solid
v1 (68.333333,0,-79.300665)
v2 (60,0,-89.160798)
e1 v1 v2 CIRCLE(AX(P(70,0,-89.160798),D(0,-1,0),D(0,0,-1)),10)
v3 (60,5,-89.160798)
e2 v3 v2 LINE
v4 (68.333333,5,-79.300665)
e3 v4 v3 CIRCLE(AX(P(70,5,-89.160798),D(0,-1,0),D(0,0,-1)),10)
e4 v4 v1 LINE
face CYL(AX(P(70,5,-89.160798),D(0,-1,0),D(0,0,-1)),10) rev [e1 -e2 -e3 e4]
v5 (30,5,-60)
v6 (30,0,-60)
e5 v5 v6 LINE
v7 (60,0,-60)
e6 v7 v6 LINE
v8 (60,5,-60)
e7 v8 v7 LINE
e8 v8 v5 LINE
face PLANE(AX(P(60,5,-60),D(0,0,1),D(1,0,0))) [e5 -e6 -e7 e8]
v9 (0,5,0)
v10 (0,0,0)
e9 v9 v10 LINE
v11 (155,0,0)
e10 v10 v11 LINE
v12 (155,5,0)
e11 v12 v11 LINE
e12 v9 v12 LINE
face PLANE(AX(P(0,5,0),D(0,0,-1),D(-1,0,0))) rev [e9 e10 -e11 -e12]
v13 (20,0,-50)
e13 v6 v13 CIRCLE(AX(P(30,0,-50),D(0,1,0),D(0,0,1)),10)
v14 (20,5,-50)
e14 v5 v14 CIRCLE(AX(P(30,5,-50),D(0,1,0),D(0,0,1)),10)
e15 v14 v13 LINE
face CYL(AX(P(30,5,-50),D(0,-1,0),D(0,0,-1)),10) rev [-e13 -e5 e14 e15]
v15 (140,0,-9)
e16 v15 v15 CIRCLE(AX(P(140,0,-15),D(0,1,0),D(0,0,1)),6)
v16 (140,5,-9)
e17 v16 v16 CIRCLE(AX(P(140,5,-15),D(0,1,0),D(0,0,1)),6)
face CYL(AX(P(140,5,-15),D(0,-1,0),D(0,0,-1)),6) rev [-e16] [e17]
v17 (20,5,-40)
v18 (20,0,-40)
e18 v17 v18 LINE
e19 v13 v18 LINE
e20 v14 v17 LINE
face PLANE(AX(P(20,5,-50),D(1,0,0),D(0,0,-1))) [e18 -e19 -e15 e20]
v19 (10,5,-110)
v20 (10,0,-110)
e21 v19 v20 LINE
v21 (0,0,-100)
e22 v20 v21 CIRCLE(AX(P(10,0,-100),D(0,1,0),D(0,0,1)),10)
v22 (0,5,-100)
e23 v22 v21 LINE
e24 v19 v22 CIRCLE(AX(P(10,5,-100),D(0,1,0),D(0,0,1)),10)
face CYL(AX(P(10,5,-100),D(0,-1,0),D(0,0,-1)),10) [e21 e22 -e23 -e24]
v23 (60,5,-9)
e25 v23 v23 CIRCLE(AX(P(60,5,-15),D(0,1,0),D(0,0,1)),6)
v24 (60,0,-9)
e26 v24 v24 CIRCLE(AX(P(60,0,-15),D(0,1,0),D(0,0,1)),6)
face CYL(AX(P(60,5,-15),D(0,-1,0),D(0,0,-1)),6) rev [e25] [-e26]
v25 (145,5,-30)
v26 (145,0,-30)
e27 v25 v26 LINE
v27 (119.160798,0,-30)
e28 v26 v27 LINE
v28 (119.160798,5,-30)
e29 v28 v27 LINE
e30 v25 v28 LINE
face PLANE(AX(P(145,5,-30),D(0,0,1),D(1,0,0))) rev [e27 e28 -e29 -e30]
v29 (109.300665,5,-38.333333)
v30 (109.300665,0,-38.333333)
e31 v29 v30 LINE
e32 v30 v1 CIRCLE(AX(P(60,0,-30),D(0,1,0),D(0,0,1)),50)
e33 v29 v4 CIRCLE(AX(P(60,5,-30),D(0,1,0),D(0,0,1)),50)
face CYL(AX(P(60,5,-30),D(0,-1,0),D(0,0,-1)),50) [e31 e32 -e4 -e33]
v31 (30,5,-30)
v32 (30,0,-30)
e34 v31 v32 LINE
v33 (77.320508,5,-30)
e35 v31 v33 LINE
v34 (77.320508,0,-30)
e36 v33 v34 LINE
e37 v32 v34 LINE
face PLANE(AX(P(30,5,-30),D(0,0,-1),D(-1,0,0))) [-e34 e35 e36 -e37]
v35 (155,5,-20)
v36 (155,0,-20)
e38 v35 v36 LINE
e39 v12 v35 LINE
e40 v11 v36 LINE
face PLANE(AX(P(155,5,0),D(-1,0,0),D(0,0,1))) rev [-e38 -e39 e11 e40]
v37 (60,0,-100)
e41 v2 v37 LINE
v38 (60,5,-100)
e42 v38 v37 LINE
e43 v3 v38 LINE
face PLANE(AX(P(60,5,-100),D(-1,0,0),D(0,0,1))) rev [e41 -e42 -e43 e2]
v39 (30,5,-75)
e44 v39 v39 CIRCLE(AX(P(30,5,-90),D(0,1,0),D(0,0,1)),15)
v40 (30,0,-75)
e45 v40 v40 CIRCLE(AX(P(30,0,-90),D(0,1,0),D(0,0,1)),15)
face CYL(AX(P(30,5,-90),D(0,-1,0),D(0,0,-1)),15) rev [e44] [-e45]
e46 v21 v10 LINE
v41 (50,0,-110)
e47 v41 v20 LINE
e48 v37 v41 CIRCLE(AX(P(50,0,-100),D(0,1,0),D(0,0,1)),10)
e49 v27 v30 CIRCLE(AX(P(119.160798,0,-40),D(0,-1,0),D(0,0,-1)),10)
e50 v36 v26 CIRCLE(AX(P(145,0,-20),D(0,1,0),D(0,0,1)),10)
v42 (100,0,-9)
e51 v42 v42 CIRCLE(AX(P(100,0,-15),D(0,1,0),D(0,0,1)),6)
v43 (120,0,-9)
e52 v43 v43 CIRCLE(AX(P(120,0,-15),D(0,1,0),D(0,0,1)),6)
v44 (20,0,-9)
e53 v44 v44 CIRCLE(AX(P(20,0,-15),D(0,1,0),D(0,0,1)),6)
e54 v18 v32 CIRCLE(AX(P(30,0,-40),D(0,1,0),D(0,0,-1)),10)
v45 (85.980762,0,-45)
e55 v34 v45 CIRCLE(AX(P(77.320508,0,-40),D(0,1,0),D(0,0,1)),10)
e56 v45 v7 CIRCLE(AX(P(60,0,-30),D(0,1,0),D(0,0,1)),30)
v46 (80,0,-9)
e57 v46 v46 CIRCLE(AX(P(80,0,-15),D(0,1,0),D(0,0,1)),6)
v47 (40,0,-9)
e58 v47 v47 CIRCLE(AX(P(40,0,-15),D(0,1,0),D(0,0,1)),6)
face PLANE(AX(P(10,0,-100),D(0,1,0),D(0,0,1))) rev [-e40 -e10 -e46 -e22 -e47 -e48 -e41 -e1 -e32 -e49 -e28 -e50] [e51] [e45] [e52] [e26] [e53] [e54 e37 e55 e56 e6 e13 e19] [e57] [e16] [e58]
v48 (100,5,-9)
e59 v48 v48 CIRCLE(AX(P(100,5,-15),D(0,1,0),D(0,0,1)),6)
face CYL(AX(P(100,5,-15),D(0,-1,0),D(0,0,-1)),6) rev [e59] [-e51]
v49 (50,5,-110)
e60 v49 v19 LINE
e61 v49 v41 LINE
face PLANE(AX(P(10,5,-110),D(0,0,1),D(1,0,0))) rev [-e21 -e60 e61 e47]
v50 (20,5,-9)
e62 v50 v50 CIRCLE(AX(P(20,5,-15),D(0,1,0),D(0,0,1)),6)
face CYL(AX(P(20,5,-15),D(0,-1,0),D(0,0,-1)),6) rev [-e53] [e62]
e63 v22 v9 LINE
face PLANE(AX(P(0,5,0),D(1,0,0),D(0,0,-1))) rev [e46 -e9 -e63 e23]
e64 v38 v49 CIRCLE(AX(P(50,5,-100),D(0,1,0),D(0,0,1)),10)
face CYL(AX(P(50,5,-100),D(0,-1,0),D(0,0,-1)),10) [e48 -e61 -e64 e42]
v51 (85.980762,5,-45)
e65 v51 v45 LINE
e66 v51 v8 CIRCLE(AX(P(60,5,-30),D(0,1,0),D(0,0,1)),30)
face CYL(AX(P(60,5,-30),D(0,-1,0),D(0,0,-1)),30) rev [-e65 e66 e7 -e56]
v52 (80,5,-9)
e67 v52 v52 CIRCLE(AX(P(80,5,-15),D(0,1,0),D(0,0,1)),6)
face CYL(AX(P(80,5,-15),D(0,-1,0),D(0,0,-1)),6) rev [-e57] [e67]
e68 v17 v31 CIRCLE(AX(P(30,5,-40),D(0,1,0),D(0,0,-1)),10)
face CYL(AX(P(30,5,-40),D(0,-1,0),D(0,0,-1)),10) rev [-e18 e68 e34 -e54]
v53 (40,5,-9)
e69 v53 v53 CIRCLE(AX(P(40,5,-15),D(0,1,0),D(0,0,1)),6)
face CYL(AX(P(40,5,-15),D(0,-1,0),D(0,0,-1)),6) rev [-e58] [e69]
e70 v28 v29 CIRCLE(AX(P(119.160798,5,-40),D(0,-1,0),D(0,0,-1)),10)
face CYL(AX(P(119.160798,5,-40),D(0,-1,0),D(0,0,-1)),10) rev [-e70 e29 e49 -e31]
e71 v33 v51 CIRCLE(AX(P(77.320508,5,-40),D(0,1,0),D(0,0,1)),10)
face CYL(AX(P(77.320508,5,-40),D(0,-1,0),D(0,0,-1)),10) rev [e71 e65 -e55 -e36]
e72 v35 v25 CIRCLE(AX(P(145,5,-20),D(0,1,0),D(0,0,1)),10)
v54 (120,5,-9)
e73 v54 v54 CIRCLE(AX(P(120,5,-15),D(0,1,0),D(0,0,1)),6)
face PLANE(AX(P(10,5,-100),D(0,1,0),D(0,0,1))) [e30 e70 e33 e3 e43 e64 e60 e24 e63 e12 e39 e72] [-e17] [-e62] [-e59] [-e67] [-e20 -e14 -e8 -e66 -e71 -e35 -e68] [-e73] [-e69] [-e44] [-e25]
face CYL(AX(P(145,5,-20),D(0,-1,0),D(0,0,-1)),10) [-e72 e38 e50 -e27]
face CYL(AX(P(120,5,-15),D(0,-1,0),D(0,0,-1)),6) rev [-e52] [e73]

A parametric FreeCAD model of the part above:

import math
import FreeCAD as App
import Part
import Sketcher

doc = App.newDocument("Part")
body = doc.addObject("PartDesign::Body", "Body")

# Sketch on XZ plane
sketch1 = body.newObject("Sketcher::SketchObject", "Sketch")
sketch1.AttachmentSupport = (doc.getObject("XZ_Plane"), [""])
sketch1.MapMode = "FlatFace"
sketch1.addGeometry(Part.LineSegment(App.Vector(0, 0, 0), App.Vector(155, 0, 0)), False)
sketch1.addGeometry(Part.LineSegment(App.Vector(155, 0, 0), App.Vector(155, -20, 0)), False)
sketch1.addGeometry(Part.ArcOfCircle(Part.Circle(App.Vector(145, -20, 0), App.Vector(0, 0, 1), 10), math.radians(-90), math.radians(0)), False)
sketch1.addGeometry(Part.LineSegment(App.Vector(145, -30, 0), App.Vector(119, -30, 0)), False)
sketch1.addGeometry(Part.ArcOfCircle(Part.Circle(App.Vector(119, -40, 0), App.Vector(0, 0, 1), 10), math.radians(90), math.radians(170)), False)
sketch1.addGeometry(Part.ArcOfCircle(Part.Circle(App.Vector(60, -30, 0), App.Vector(0, 0, 1), 50), math.radians(-80), math.radians(-10)), False)
sketch1.addGeometry(Part.ArcOfCircle(Part.Circle(App.Vector(70, -89, 0), App.Vector(0, 0, 1), 10), math.radians(100), math.radians(180)), False)
sketch1.addGeometry(Part.LineSegment(App.Vector(60, -89, 0), App.Vector(60, -100, 0)), False)
sketch1.addGeometry(Part.ArcOfCircle(Part.Circle(App.Vector(50, -100, 0), App.Vector(0, 0, 1), 10), math.radians(-90), math.radians(0)), False)
sketch1.addGeometry(Part.LineSegment(App.Vector(50, -110, 0), App.Vector(10, -110, 0)), False)
sketch1.addGeometry(Part.ArcOfCircle(Part.Circle(App.Vector(10, -100, 0), App.Vector(0, 0, 1), 10), math.radians(180), math.radians(270)), False)
sketch1.addGeometry(Part.LineSegment(App.Vector(0, -100, 0), App.Vector(0, 0, 0)), False)
sketch1.addGeometry(Part.Circle(App.Vector(20, -15, 0), App.Vector(0, 0, 1), 6), False)
sketch1.addGeometry(Part.Circle(App.Vector(40, -15, 0), App.Vector(0, 0, 1), 6), False)
sketch1.addGeometry(Part.Circle(App.Vector(60, -15, 0), App.Vector(0, 0, 1), 6), False)
sketch1.addGeometry(Part.LineSegment(App.Vector(30, -60, 0), App.Vector(60, -60, 0)), False)
sketch1.addGeometry(Part.ArcOfCircle(Part.Circle(App.Vector(60, -30, 0), App.Vector(0, 0, 1), 30), math.radians(-90), math.radians(-30)), False)
sketch1.addGeometry(Part.ArcOfCircle(Part.Circle(App.Vector(77, -40, 0), App.Vector(0, 0, 1), 10), math.radians(-30), math.radians(90)), False)
sketch1.addGeometry(Part.LineSegment(App.Vector(77, -30, 0), App.Vector(30, -30, 0)), False)
sketch1.addGeometry(Part.ArcOfCircle(Part.Circle(App.Vector(30, -40, 0), App.Vector(0, 0, 1), 10), math.radians(90), math.radians(180)), False)
sketch1.addGeometry(Part.LineSegment(App.Vector(20, -40, 0), App.Vector(20, -50, 0)), False)
sketch1.addGeometry(Part.ArcOfCircle(Part.Circle(App.Vector(30, -50, 0), App.Vector(0, 0, 1), 10), math.radians(180), math.radians(270)), False)
sketch1.addGeometry(Part.Circle(App.Vector(80, -15, 0), App.Vector(0, 0, 1), 6), False)
sketch1.addGeometry(Part.Circle(App.Vector(100, -15, 0), App.Vector(0, 0, 1), 6), False)
sketch1.addGeometry(Part.Circle(App.Vector(120, -15, 0), App.Vector(0, 0, 1), 6), False)
sketch1.addGeometry(Part.Circle(App.Vector(140, -15, 0), App.Vector(0, 0, 1), 6), False)
sketch1.addGeometry(Part.Circle(App.Vector(30, -90, 0), App.Vector(0, 0, 1), 15), False)
sketch1.addConstraint(Sketcher.Constraint("Coincident", 0, 2, 1, 1))
sketch1.addConstraint(Sketcher.Constraint("Tangent", 1, 2, 2, 2))
sketch1.addConstraint(Sketcher.Constraint("Tangent", 2, 1, 3, 1))
sketch1.addConstraint(Sketcher.Constraint("Tangent", 3, 2, 4, 1))
sketch1.addConstraint(Sketcher.Constraint("Tangent", 4, 2, 5, 2))
sketch1.addConstraint(Sketcher.Constraint("Tangent", 5, 1, 6, 1))
sketch1.addConstraint(Sketcher.Constraint("Tangent", 6, 2, 7, 1))
sketch1.addConstraint(Sketcher.Constraint("Tangent", 7, 2, 8, 2))
sketch1.addConstraint(Sketcher.Constraint("Tangent", 8, 1, 9, 1))
sketch1.addConstraint(Sketcher.Constraint("Tangent", 9, 2, 10, 2))
sketch1.addConstraint(Sketcher.Constraint("Tangent", 10, 1, 11, 1))
sketch1.addConstraint(Sketcher.Constraint("Coincident", 11, 2, 0, 1))
sketch1.addConstraint(Sketcher.Constraint("Tangent", 15, 2, 16, 1))
sketch1.addConstraint(Sketcher.Constraint("Tangent", 16, 2, 17, 1))
sketch1.addConstraint(Sketcher.Constraint("Tangent", 17, 2, 18, 1))
sketch1.addConstraint(Sketcher.Constraint("Tangent", 18, 2, 19, 1))
sketch1.addConstraint(Sketcher.Constraint("Tangent", 19, 2, 20, 1))
sketch1.addConstraint(Sketcher.Constraint("Tangent", 20, 2, 21, 1))
sketch1.addConstraint(Sketcher.Constraint("Tangent", 21, 2, 15, 1))
sketch1.addConstraint(Sketcher.Constraint("Horizontal", 0))
sketch1.addConstraint(Sketcher.Constraint("Vertical", 1))
sketch1.addConstraint(Sketcher.Constraint("Horizontal", 3))
sketch1.addConstraint(Sketcher.Constraint("Vertical", 7))
sketch1.addConstraint(Sketcher.Constraint("Horizontal", 9))
sketch1.addConstraint(Sketcher.Constraint("Vertical", 11))
sketch1.addConstraint(Sketcher.Constraint("Horizontal", 15))
sketch1.addConstraint(Sketcher.Constraint("Horizontal", 18))
sketch1.addConstraint(Sketcher.Constraint("Vertical", 20))
sketch1.addConstraint(Sketcher.Constraint("Coincident", 11, 2, -1, 1))
sketch1.addConstraint(Sketcher.Constraint("Coincident", 16, 3, 5, 3))
sketch1.addConstraint(Sketcher.Constraint("Equal", 2, 4))
sketch1.addConstraint(Sketcher.Constraint("Equal", 4, 6))
sketch1.addConstraint(Sketcher.Constraint("Equal", 6, 8))
sketch1.addConstraint(Sketcher.Constraint("Equal", 8, 10))
sketch1.addConstraint(Sketcher.Constraint("Equal", 12, 13))
sketch1.addConstraint(Sketcher.Constraint("Equal", 13, 14))
sketch1.addConstraint(Sketcher.Constraint("Equal", 10, 17))
sketch1.addConstraint(Sketcher.Constraint("Equal", 17, 19))
sketch1.addConstraint(Sketcher.Constraint("Equal", 19, 21))
sketch1.addConstraint(Sketcher.Constraint("Equal", 14, 22))
sketch1.addConstraint(Sketcher.Constraint("Equal", 22, 23))
sketch1.addConstraint(Sketcher.Constraint("Equal", 23, 24))
sketch1.addConstraint(Sketcher.Constraint("Equal", 24, 25))
sketch1.addConstraint(Sketcher.Constraint("Horizontal", 12, 3, 13, 3))
sketch1.addConstraint(Sketcher.Constraint("Horizontal", 13, 3, 14, 3))
sketch1.addConstraint(Sketcher.Constraint("Horizontal", 4, 3, 17, 3))
sketch1.addConstraint(Sketcher.Constraint("Horizontal", 14, 3, 22, 3))
sketch1.addConstraint(Sketcher.Constraint("Horizontal", 22, 3, 23, 3))
sketch1.addConstraint(Sketcher.Constraint("Horizontal", 23, 3, 24, 3))
sketch1.addConstraint(Sketcher.Constraint("Horizontal", 24, 3, 25, 3))
sketch1.addConstraint(Sketcher.Constraint("Horizontal", 16, 3, 2, 1))
sketch1.addConstraint(Sketcher.Constraint("Vertical", 5, 3, 14, 3))
sketch1.addConstraint(Sketcher.Constraint("Vertical", 21, 3, 26, 3))
sketch1.addConstraint(Sketcher.Constraint("Vertical", 16, 3, 6, 2))
sketch1.addConstraint(Sketcher.Constraint("Vertical", 12, 3, 19, 2))
sketch1.addConstraint(Sketcher.Constraint("Diameter", 12, 12.0))
sketch1.addConstraint(Sketcher.Constraint("Diameter", 26, 30.0))
sketch1.addConstraint(Sketcher.Constraint("Radius", 2, 10.0))
sketch1.addConstraint(Sketcher.Constraint("Radius", 5, 50.0))
sketch1.addConstraint(Sketcher.Constraint("Radius", 16, 30.0))
sketch1.addConstraint(Sketcher.Constraint("DistanceX", 0, 1, 0, 2, 155.0))
sketch1.addConstraint(Sketcher.Constraint("DistanceX", 9, 2, 9, 1, 40.0))
sketch1.addConstraint(Sketcher.Constraint("DistanceX", 15, 1, 15, 2, 30.0))
sketch1.addConstraint(Sketcher.Constraint("DistanceY", 1, 2, 1, 1, 20.0))
sketch1.addConstraint(Sketcher.Constraint("DistanceY", 11, 1, 11, 2, 100.0))
sketch1.addConstraint(Sketcher.Constraint("DistanceY", 12, 3, -1, 1, 15.0))
sketch1.addConstraint(Sketcher.Constraint("DistanceX", -1, 1, 13, 3, 40.0))
sketch1.addConstraint(Sketcher.Constraint("DistanceX", -1, 1, 22, 3, 80.0))
sketch1.addConstraint(Sketcher.Constraint("DistanceX", -1, 1, 23, 3, 100.0))
sketch1.addConstraint(Sketcher.Constraint("DistanceX", -1, 1, 24, 3, 120.0))
sketch1.addConstraint(Sketcher.Constraint("DistanceX", -1, 1, 25, 3, 140.0))
sketch1.addConstraint(Sketcher.Constraint("DistanceY", 26, 3, -1, 1, 90.0))
pad1 = body.newObject("PartDesign::Pad", "Pad")
pad1.Profile = sketch1
pad1.Length = 5
pad1.Reversed = True

doc.recompute()
